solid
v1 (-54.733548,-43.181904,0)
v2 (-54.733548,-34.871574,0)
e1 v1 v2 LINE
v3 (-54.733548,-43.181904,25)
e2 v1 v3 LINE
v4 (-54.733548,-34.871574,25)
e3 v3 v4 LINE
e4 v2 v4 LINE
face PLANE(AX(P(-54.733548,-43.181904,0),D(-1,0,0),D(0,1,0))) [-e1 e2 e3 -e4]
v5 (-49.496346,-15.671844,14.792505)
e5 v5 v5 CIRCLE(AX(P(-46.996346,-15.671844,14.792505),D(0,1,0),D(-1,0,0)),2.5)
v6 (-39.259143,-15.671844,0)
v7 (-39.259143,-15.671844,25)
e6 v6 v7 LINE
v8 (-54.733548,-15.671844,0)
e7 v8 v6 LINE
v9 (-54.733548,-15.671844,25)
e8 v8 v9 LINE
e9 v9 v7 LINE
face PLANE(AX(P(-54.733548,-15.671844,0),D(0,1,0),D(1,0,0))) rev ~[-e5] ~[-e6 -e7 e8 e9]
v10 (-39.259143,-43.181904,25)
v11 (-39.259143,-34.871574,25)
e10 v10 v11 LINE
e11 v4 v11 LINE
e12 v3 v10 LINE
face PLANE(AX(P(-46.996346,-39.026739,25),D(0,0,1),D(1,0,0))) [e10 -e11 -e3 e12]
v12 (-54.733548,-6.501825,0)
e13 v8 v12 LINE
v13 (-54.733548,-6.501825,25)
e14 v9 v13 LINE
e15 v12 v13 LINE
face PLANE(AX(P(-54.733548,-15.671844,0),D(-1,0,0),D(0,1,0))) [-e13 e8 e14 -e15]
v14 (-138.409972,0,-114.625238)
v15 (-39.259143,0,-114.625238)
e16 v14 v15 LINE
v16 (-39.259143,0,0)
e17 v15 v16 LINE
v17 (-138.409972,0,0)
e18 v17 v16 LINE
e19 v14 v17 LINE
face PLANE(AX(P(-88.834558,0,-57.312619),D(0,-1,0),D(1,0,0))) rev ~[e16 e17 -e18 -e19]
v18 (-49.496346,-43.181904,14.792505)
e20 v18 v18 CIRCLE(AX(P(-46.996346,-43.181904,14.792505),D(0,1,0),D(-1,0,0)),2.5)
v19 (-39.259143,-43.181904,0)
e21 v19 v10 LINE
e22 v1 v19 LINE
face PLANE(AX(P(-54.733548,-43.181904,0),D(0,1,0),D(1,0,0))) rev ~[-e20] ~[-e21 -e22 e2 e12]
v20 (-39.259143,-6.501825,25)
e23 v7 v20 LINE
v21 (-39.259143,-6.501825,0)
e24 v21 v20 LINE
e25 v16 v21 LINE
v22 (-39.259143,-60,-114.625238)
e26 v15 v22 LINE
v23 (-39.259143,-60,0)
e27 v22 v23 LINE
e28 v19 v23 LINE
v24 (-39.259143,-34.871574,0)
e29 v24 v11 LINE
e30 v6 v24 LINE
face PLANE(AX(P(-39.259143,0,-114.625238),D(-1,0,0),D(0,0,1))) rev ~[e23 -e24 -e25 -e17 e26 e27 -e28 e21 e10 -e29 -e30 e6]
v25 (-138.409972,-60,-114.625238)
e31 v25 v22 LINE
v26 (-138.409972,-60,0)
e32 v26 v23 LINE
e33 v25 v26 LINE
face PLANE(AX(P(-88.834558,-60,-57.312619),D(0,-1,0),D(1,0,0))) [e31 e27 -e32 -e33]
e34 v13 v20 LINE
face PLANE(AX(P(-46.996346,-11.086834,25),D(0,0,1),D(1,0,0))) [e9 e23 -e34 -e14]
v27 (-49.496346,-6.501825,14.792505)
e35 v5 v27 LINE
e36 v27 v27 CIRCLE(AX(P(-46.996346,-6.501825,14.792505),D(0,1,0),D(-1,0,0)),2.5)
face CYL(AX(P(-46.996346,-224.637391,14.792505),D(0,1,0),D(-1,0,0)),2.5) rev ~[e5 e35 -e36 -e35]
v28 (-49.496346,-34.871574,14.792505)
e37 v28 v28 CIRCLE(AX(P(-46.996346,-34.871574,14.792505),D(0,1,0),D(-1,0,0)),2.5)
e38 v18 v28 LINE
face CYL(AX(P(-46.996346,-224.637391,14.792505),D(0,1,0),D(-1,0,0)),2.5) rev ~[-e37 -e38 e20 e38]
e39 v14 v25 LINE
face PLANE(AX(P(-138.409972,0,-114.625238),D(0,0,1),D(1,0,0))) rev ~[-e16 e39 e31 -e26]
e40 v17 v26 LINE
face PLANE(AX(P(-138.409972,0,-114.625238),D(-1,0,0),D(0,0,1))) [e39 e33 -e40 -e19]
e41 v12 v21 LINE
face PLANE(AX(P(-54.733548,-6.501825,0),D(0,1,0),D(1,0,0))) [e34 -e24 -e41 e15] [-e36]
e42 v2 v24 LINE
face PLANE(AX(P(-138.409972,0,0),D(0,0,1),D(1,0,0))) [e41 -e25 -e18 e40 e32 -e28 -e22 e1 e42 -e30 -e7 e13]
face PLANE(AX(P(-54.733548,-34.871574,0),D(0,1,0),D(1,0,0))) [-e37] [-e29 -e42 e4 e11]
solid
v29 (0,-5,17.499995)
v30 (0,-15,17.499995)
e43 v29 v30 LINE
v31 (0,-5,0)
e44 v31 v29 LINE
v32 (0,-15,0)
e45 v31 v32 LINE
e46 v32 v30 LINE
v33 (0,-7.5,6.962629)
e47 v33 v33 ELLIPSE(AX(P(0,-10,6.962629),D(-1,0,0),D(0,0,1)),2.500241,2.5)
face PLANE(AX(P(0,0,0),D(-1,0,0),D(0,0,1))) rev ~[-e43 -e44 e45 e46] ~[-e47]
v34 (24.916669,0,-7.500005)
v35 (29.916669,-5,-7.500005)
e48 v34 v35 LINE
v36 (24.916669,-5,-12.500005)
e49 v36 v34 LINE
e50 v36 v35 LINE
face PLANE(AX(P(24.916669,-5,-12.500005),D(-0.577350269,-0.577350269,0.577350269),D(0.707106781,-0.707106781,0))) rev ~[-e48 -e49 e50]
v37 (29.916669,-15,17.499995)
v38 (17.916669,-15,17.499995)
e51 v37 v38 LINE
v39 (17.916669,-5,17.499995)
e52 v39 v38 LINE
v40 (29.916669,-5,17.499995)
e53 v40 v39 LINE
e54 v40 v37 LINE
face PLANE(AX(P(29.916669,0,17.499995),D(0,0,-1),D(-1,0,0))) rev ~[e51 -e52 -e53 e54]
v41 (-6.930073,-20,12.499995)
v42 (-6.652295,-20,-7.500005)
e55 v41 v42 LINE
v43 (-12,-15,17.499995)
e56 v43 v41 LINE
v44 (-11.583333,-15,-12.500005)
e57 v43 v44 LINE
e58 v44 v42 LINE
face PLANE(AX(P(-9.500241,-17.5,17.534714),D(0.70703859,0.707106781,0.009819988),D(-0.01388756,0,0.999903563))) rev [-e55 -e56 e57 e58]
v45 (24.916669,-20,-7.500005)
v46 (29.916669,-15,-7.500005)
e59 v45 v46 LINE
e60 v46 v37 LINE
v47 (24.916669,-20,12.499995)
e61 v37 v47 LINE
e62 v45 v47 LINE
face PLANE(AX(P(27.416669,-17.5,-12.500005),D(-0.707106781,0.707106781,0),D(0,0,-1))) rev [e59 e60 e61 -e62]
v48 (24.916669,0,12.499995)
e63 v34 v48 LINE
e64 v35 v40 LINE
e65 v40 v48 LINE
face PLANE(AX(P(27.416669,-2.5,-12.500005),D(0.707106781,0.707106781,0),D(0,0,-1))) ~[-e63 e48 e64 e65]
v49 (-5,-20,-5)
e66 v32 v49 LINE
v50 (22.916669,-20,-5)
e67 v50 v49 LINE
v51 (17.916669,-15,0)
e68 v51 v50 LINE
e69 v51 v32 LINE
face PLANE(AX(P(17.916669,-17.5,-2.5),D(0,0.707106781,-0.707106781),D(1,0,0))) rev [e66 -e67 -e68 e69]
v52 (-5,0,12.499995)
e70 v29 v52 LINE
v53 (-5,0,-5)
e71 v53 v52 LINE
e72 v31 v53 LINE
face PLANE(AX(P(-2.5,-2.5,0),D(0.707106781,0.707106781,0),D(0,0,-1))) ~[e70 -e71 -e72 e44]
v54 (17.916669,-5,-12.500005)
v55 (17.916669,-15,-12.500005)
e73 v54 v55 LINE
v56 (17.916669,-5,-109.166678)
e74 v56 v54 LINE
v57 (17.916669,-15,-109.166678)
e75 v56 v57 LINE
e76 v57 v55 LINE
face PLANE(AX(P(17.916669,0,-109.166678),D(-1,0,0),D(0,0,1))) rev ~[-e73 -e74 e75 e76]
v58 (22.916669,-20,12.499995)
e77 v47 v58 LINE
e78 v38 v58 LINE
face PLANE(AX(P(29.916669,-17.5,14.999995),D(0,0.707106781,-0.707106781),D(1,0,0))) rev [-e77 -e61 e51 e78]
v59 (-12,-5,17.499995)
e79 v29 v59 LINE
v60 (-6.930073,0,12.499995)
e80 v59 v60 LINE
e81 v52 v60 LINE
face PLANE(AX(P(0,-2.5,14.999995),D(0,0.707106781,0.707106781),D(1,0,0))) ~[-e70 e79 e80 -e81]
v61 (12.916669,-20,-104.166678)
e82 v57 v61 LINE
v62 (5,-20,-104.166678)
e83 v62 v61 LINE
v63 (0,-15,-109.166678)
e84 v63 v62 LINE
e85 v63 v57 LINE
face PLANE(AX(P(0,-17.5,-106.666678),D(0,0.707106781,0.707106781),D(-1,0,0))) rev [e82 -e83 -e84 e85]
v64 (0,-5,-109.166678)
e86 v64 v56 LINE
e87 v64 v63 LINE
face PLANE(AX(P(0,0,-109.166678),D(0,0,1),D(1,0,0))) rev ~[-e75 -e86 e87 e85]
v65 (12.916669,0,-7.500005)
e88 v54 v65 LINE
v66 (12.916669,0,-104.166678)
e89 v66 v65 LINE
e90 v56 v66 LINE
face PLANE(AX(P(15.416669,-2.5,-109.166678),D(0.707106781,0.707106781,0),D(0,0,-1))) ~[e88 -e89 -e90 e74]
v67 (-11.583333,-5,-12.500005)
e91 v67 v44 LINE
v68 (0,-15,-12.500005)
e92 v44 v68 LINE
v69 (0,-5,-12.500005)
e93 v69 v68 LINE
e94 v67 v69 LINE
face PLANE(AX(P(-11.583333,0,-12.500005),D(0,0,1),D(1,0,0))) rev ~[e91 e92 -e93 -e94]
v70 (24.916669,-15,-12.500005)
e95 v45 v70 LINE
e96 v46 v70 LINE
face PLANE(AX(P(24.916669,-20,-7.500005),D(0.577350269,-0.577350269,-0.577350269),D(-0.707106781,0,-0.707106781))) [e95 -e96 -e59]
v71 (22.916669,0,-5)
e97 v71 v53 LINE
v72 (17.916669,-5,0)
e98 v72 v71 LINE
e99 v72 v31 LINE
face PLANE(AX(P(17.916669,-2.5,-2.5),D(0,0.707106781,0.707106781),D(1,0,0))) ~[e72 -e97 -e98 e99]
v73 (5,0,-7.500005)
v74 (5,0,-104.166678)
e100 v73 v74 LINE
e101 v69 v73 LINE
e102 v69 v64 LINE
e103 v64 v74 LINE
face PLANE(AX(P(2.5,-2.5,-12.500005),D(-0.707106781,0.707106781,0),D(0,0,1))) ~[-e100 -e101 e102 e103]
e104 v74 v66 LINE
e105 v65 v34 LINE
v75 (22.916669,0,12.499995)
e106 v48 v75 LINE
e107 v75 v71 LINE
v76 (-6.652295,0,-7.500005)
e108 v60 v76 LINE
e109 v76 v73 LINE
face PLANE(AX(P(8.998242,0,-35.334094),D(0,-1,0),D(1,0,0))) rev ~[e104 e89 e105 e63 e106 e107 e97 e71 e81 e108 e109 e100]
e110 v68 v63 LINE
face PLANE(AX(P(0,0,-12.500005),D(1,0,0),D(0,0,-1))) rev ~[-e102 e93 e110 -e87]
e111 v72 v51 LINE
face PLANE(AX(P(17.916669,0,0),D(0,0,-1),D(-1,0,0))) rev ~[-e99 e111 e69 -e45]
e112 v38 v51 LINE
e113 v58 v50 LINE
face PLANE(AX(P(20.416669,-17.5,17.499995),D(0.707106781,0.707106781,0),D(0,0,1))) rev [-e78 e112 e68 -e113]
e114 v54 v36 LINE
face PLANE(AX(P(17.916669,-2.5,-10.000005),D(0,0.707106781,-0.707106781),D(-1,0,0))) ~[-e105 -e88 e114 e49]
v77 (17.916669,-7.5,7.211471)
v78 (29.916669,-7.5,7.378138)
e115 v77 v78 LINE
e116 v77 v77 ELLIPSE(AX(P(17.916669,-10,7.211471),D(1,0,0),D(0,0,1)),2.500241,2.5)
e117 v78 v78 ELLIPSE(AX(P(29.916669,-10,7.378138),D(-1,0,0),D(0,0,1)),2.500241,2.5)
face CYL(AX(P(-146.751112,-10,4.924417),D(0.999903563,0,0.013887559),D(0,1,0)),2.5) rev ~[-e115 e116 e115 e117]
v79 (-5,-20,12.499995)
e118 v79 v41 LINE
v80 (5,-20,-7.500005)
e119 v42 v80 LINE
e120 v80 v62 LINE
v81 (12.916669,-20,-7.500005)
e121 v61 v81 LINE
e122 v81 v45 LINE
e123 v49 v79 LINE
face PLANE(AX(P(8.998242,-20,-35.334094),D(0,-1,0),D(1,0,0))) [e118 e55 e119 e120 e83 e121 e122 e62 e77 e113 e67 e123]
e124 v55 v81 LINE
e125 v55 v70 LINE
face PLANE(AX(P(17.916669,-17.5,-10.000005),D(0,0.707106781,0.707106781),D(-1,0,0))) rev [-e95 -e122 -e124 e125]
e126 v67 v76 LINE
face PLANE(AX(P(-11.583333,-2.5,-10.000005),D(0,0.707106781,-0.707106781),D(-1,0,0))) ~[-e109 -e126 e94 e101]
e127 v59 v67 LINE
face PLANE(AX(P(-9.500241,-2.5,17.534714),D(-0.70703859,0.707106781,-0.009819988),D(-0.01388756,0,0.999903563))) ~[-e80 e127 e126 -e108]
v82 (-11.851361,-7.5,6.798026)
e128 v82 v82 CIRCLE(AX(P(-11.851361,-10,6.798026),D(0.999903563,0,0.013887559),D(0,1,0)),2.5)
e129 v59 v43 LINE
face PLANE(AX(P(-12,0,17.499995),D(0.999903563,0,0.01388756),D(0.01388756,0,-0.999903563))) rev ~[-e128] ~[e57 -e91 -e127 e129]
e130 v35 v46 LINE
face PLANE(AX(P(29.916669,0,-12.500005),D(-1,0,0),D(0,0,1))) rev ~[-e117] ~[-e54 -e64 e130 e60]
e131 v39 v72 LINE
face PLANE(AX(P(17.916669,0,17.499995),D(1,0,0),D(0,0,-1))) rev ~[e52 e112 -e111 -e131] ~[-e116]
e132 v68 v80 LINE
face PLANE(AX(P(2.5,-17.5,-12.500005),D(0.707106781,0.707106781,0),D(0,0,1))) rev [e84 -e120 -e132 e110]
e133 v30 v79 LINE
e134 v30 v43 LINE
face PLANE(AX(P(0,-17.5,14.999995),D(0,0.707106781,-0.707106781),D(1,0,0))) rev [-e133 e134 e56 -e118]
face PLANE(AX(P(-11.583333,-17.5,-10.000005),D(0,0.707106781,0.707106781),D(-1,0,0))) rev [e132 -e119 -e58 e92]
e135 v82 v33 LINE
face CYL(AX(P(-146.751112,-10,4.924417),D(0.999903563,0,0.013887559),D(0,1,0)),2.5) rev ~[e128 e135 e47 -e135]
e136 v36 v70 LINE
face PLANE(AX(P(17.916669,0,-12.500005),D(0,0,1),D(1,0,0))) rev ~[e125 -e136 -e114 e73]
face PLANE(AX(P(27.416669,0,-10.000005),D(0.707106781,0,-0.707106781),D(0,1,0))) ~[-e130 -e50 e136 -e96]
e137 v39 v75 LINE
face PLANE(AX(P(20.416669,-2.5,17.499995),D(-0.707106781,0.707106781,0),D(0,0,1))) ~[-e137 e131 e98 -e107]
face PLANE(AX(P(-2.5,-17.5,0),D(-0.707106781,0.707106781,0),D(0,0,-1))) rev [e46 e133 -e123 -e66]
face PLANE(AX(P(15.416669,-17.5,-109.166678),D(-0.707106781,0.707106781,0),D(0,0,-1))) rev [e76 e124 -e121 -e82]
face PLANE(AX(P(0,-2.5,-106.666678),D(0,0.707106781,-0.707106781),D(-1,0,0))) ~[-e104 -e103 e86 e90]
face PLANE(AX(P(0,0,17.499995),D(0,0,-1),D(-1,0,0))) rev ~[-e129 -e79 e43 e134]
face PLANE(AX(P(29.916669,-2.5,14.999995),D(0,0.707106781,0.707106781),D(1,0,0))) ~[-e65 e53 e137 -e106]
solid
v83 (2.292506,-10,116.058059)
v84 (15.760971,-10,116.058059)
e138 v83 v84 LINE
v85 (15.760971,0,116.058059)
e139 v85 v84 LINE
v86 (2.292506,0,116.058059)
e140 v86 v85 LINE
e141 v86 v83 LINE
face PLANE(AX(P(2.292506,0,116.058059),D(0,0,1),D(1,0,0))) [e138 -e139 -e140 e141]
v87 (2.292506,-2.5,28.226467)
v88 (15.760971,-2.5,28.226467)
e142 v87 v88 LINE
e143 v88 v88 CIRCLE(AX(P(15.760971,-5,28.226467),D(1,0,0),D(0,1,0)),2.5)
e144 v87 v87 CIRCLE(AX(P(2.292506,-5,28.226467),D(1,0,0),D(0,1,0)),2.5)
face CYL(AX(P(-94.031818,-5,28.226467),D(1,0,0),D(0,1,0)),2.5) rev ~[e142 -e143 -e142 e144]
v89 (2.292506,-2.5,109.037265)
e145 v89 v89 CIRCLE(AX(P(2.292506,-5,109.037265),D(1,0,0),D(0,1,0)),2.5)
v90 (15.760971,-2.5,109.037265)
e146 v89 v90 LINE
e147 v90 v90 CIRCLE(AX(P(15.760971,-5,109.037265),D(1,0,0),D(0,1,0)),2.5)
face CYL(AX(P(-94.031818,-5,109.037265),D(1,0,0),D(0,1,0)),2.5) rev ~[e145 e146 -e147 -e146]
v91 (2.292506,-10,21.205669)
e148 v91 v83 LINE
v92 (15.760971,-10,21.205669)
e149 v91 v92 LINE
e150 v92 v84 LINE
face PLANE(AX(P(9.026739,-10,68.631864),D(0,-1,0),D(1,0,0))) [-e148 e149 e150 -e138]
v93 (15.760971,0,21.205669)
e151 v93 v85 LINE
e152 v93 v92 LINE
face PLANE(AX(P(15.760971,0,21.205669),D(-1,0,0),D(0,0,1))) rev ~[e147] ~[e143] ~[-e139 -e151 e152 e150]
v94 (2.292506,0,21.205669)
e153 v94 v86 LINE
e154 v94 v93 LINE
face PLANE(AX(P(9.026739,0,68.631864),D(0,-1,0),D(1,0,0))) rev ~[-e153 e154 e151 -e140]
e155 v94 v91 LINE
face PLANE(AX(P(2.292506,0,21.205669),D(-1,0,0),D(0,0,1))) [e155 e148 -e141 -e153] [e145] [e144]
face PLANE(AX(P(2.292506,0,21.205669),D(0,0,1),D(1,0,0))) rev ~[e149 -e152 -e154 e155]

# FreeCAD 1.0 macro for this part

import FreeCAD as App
import Part
import Sketcher

V = App.Vector
Q = App.Units.Quantity


def edges_at(feature, points):
    """Names of the edges that pass closest to the given points."""
    edges = feature.Shape.Edges
    near = lambda p: min(range(len(edges)), key=lambda i: edges[i].distToShape(Part.Vertex(*p))[0])
    return sorted({f"Edge{near(p) + 1}" for p in points})


def add_polygon(sketch, points):
    """Adds a closed chain of lines whose ends are joined by coincident constraints."""
    first, n = sketch.GeometryCount, len(points)
    for a, b in zip(points, points[1:] + points[:1]):
        sketch.addGeometry(Part.LineSegment(App.Vector(*a, 0), App.Vector(*b, 0)), False)
    for i in range(n):
        sketch.addConstraint(Sketcher.Constraint("Coincident", first + i, 2, first + (i + 1) % n, 1))

doc = App.newDocument("Part")
body = doc.addObject("PartDesign::Body", "Body")

# Sketch on XZ plane
sketch1 = body.newObject("Sketcher::SketchObject", "Sketch")
sketch1.AttachmentSupport = (doc.getObject("XZ_Plane"), [""])
sketch1.MapMode = "FlatFace"
add_polygon(sketch1, [(0, 17), (-12, 17), (-12, -13), (0, -13), (0, -109), (18, -109), (18, -13), (30, -13), (30, 17), (18, 17), (18, 0), (0, 0)])  # lines 0-11
sketch1.addConstraint([
    Sketcher.Constraint("Horizontal", 0),
    Sketcher.Constraint("Horizontal", 2),
    Sketcher.Constraint("Vertical", 3),
    Sketcher.Constraint("Horizontal", 4),
    Sketcher.Constraint("Vertical", 5),
    Sketcher.Constraint("Horizontal", 6),
    Sketcher.Constraint("Vertical", 7),
    Sketcher.Constraint("Horizontal", 8),
    Sketcher.Constraint("Vertical", 9),
    Sketcher.Constraint("Horizontal", 10),
    Sketcher.Constraint("Vertical", 11),
    Sketcher.Constraint("Coincident", 10, 2, -1, 1),
    Sketcher.Constraint("PointOnObject", 2, 2, -2),
    Sketcher.Constraint("Horizontal", 2, 2, 5, 2),
    Sketcher.Constraint("Horizontal", 0, 2, 7, 2),
    Sketcher.Constraint("Vertical", 5, 2, 8, 2),
    Sketcher.Constraint("Equal", 0, 6),
    Sketcher.Constraint("DistanceX", 0, 2, 0, 1, Q("12 mm")),
    Sketcher.Constraint("DistanceY", 7, 1, 7, 2, Q("30 mm")),
    Sketcher.Constraint("DistanceX", 1, 2, 4, 2, Q("29.500002 mm")),
    Sketcher.Constraint("DistanceX", 4, 1, 4, 2, Q("17.916669 mm")),
    Sketcher.Constraint("DistanceY", 3, 2, 3, 1, Q("96.666673 mm")),
    Sketcher.Constraint("DistanceY", 9, 2, 9, 1, Q("17.499995 mm")),
])
pad1 = body.newObject("PartDesign::Pad", "Pad")
pad1.Profile = sketch1
pad1.Length = 20
doc.recompute()

chamfer = body.newObject("PartDesign::Chamfer", "Chamfer")
chamfer.Base = (pad1, edges_at(pad1, [
    (29.917, 0, 2.5),
    (23.917, 0, 17.5),
    (17.917, 0, 8.75),
    (8.958, 0, 0),
    (0, 0, 8.75),
    (-6, 0, 17.5),
    (-11.792, 0, 2.5),
    (-5.792, 0, -12.5),
    (0, 0, -60.833),
    (8.958, 0, -109.167),
    (17.917, 0, -60.833),
    (23.917, 0, -12.5),
    (29.917, -10, -12.5),
    (29.917, -20, 2.5),
    (23.917, -20, 17.5),
    (17.917, -20, 8.75),
    (8.958, -20, 0),
    (0, -20, 8.75),
    (-6, -20, 17.5),
    (-11.792, -20, 2.5),
    (-5.792, -20, -12.5),
    (0, -20, -60.833),
    (8.958, -20, -109.167),
    (17.917, -20, -60.833),
    (23.917, -20, -12.5),
]))
chamfer.Size = 5

# Sketch on an angled plane
sketch2 = body.newObject("Sketcher::SketchObject", "Sketch001")
sketch2.Placement = App.Placement(V(-11.754677, 0, -0.16326), App.Rotation(V(0, -1, 0), V(-0.013887559, 0, 0.999903563), V(-0.999903563, 0, -0.013887559), "ZXY"))
sketch2.addGeometry(Part.Circle(V(10, 7, 0), V(0, 0, 1), 2.5), False)
sketch2.addConstraint([
    Sketcher.Constraint("Diameter", 0, Q("5 mm")),
    Sketcher.Constraint("DistanceX", -1, 1, 0, 3, Q("10 mm")),
    Sketcher.Constraint("DistanceY", -1, 1, 0, 3, Q("6.961957 mm")),
])
doc.recompute()
hole = body.newObject("PartDesign::Hole", "Hole")
hole.Profile = sketch2
hole.ThreadType = "None"
hole.Diameter = 5
hole.DepthType = "ThroughAll"
body2 = doc.addObject("PartDesign::Body", "Body001")

# Sketch on XZ plane
sketch3 = body2.newObject("Sketcher::SketchObject", "Sketch002")
sketch3.AttachmentSupport = (doc.getObject("XZ_Plane001"), [""])
sketch3.MapMode = "FlatFace"
add_polygon(sketch3, [(2, 116), (2, 21), (16, 21), (16, 116)])  # lines 0-3
sketch3.addConstraint([
    Sketcher.Constraint("Vertical", 0),
    Sketcher.Constraint("Horizontal", 1),
    Sketcher.Constraint("Vertical", 2),
    Sketcher.Constraint("Horizontal", 3),
    Sketcher.Constraint("DistanceY", 0, 2, 0, 1, Q("94.85239 mm")),
    Sketcher.Constraint("DistanceX", 1, 1, 1, 2, Q("13.468465 mm")),
    Sketcher.Constraint("DistanceY", -1, 1, 0, 2, Q("21.205669 mm")),
    Sketcher.Constraint("DistanceX", -1, 1, 1, 2, Q("15.760971 mm")),
])
pad2 = body2.newObject("PartDesign::Pad", "Pad001")
pad2.Profile = sketch3
pad2.Length = 10

# Sketch on YZ plane
sketch4 = body2.newObject("Sketcher::SketchObject", "Sketch003")
sketch4.AttachmentSupport = (doc.getObject("YZ_Plane001"), [""])
sketch4.MapMode = "FlatFace"
sketch4.AttachmentOffset = App.Placement(V(0, 0, 2.292506), App.Rotation())
sketch4.addGeometry([
    Part.Circle(V(-5, 109, 0), V(0, 0, 1), 2.5),
    Part.Circle(V(-5, 28.2, 0), V(0, 0, 1), 2.5),
], False)
sketch4.addConstraint([
    Sketcher.Constraint("Equal", 0, 1),
    Sketcher.Constraint("Vertical", 0, 3, 1, 3),
    Sketcher.Constraint("Diameter", 0, Q("5 mm")),
    Sketcher.Constraint("DistanceX", 0, 3, -1, 1, Q("5 mm")),
    Sketcher.Constraint("DistanceY", 1, 3, 0, 3, Q("80.810798 mm")),
    Sketcher.Constraint("DistanceY", -1, 1, 0, 3, Q("109.037265 mm")),
])
doc.recompute()
hole2 = body2.newObject("PartDesign::Hole", "Hole001")
hole2.Profile = sketch4
hole2.ThreadType = "None"
hole2.Diameter = 5
hole2.DepthType = "ThroughAll"
hole2.Reversed = True
body3 = doc.addObject("PartDesign::Body", "Body002")

# Sketch on XZ plane
sketch5 = body3.newObject("Sketcher::SketchObject", "Sketch004")
sketch5.AttachmentSupport = (doc.getObject("XZ_Plane002"), [""])
sketch5.MapMode = "FlatFace"
add_polygon(sketch5, [(-138, 0), (-138, -115), (-39, -115), (-39, 0)])  # lines 0-3
sketch5.addConstraint([
    Sketcher.Constraint("Vertical", 0),
    Sketcher.Constraint("Horizontal", 1),
    Sketcher.Constraint("Vertical", 2),
    Sketcher.Constraint("Horizontal", 3),
    Sketcher.Constraint("PointOnObject", 2, 2, -1),
    Sketcher.Constraint("DistanceX", 1, 1, 1, 2, Q("99.150829 mm")),
    Sketcher.Constraint("DistanceY", 0, 2, 0, 1, Q("114.625238 mm")),
    Sketcher.Constraint("DistanceX", 0, 2, -1, 1, Q("138.409972 mm")),
])
pad3 = body3.newObject("PartDesign::Pad", "Pad002")
pad3.Profile = sketch5
pad3.Length = 60

# Sketch on XY plane
sketch6 = body3.newObject("Sketcher::SketchObject", "Sketch005")
sketch6.AttachmentSupport = (doc.getObject("XY_Plane002"), [""])
sketch6.MapMode = "FlatFace"
add_polygon(sketch6, [(-55, -7), (-55, -16), (-39, -16), (-39, -7)])  # lines 0-3
add_polygon(sketch6, [(-55, -35), (-55, -43), (-39, -43), (-39, -35)])  # lines 4-7
sketch6.addConstraint([
    Sketcher.Constraint("Vertical", 0),
    Sketcher.Constraint("Horizontal", 1),
    Sketcher.Constraint("Vertical", 2),
    Sketcher.Constraint("Horizontal", 3),
    Sketcher.Constraint("Vertical", 4),
    Sketcher.Constraint("Horizontal", 5),
    Sketcher.Constraint("Vertical", 6),
    Sketcher.Constraint("Horizontal", 7),
    Sketcher.Constraint("Vertical", 3, 2, 4, 2),
    Sketcher.Constraint("Vertical", 2, 2, 5, 2),
    Sketcher.Constraint("DistanceY", 0, 2, 0, 1, Q("9.170019 mm")),
    Sketcher.Constraint("DistanceY", 4, 2, 4, 1, Q("8.310329 mm")),
    Sketcher.Constraint("DistanceX", 1, 1, 1, 2, Q("15.474405 mm")),
    Sketcher.Constraint("DistanceX", 0, 2, -1, 1, Q("54.733548 mm")),
    Sketcher.Constraint("DistanceY", 4, 2, 0, 2, Q("27.51006 mm")),
    Sketcher.Constraint("DistanceY", 0, 2, -1, 1, Q("15.671844 mm")),
])
pad4 = body3.newObject("PartDesign::Pad", "Pad003")
pad4.Profile = sketch6
pad4.Length = 25

# Sketch on XZ plane
sketch7 = body3.newObject("Sketcher::SketchObject", "Sketch006")
sketch7.AttachmentSupport = (doc.getObject("XZ_Plane002"), [""])
sketch7.MapMode = "FlatFace"
sketch7.AttachmentOffset = App.Placement(V(0, 0, 43.181904), App.Rotation())
sketch7.addGeometry(Part.Circle(V(-47, 14.8, 0), V(0, 0, 1), 2.5), False)
sketch7.addConstraint([
    Sketcher.Constraint("Diameter", 0, Q("5 mm")),
    Sketcher.Constraint("DistanceX", 0, 3, -1, 1, Q("46.996346 mm")),
    Sketcher.Constraint("DistanceY", -1, 1, 0, 3, Q("14.792505 mm")),
])
doc.recompute()
hole3 = body3.newObject("PartDesign::Hole", "Hole002")
hole3.Profile = sketch7
hole3.ThreadType = "None"
hole3.Diameter = 5
hole3.DepthType = "ThroughAll"

doc.recompute()
